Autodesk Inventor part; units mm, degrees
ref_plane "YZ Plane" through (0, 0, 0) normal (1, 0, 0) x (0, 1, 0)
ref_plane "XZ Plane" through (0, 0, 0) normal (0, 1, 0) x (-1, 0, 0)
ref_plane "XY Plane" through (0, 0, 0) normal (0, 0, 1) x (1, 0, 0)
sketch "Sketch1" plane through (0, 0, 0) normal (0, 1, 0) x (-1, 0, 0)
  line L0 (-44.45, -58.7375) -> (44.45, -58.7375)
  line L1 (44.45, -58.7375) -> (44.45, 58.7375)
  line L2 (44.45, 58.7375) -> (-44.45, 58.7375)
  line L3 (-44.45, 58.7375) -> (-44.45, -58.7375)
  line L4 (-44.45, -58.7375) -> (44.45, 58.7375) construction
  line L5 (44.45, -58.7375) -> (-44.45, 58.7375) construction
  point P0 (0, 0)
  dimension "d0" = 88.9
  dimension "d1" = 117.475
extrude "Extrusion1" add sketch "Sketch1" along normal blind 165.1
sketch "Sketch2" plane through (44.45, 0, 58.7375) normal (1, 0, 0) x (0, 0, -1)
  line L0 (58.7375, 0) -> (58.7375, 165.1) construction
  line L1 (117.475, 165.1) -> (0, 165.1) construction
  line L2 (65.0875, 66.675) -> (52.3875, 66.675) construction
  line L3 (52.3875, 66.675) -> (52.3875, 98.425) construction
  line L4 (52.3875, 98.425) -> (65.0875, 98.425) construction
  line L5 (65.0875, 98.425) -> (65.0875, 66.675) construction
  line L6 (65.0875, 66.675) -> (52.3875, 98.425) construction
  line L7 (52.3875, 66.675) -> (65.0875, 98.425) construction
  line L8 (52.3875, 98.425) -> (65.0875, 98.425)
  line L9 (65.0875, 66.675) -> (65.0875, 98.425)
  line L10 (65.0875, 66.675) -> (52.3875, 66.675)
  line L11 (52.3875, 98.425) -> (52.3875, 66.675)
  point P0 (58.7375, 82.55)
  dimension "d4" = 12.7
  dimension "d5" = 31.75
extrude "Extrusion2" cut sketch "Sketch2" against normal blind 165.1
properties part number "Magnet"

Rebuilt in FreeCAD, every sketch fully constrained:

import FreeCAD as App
import Part
import Sketcher
from FreeCAD import Vector
Q = App.Units.Quantity


def add_polygon(sketch, points):
    """Adds a closed chain of lines whose ends are joined by coincident constraints."""
    first, n = sketch.GeometryCount, len(points)
    for a, b in zip(points, points[1:] + points[:1]):
        sketch.addGeometry(Part.LineSegment(App.Vector(*a, 0), App.Vector(*b, 0)), False)
    for i in range(n):
        sketch.addConstraint(Sketcher.Constraint("Coincident", first + i, 2, first + (i + 1) % n, 1))

doc = App.newDocument("Part")
body = doc.addObject("PartDesign::Body", "Body")

# Sketch on XZ plane
sketch1 = body.newObject("Sketcher::SketchObject", "Sketch")
sketch1.AttachmentSupport = (doc.getObject("XZ_Plane"), [""])
sketch1.MapMode = "FlatFace"
add_polygon(sketch1, [(44, 59), (44, -59), (-44, -59), (-44, 59)])  # lines 0-3
sketch1.addConstraint(Sketcher.Constraint("Vertical", 0))
sketch1.addConstraint(Sketcher.Constraint("Horizontal", 1))
sketch1.addConstraint(Sketcher.Constraint("Vertical", 2))
sketch1.addConstraint(Sketcher.Constraint("Horizontal", 3))
sketch1.addConstraint(Sketcher.Constraint("Symmetric", 0, 2, 2, 2, -1, 1))
sketch1.addConstraint(Sketcher.Constraint("DistanceX", 1, 2, 1, 1, Q("3.5 in")))
sketch1.addConstraint(Sketcher.Constraint("DistanceY", 0, 2, 0, 1, Q("4.625 in")))
pad1 = body.newObject("PartDesign::Pad", "Pad")
pad1.Profile = sketch1
pad1.Length = Q("6.5 in")
pad1.Reversed = True

# Sketch on YZ plane
sketch2 = body.newObject("Sketcher::SketchObject", "Sketch001")
sketch2.AttachmentSupport = (doc.getObject("YZ_Plane"), [""])
sketch2.MapMode = "FlatFace"
sketch2.AttachmentOffset = App.Placement(Vector(0, 0, 1.75 * 25.4), App.Rotation())
add_polygon(sketch2, [(98, -6), (98, 6), (67, 6), (67, -6)])  # lines 0-3
sketch2.addConstraint(Sketcher.Constraint("Vertical", 0))
sketch2.addConstraint(Sketcher.Constraint("Horizontal", 1))
sketch2.addConstraint(Sketcher.Constraint("Vertical", 2))
sketch2.addConstraint(Sketcher.Constraint("Horizontal", 3))
sketch2.addConstraint(Sketcher.Constraint("DistanceY", 0, 1, 0, 2, Q("0.5 in")))
sketch2.addConstraint(Sketcher.Constraint("DistanceX", 1, 2, 1, 1, Q("1.25 in")))
sketch2.addConstraint(Sketcher.Constraint("DistanceY", -1, 1, 0, 2, Q("0.25 in")))
sketch2.addConstraint(Sketcher.Constraint("DistanceX", -1, 1, 0, 2, Q("3.875 in")))
pocket1 = body.newObject("PartDesign::Pocket", "Pocket")
pocket1.Profile = sketch2
pocket1.Length = Q("6.5 in")

doc.recompute()
